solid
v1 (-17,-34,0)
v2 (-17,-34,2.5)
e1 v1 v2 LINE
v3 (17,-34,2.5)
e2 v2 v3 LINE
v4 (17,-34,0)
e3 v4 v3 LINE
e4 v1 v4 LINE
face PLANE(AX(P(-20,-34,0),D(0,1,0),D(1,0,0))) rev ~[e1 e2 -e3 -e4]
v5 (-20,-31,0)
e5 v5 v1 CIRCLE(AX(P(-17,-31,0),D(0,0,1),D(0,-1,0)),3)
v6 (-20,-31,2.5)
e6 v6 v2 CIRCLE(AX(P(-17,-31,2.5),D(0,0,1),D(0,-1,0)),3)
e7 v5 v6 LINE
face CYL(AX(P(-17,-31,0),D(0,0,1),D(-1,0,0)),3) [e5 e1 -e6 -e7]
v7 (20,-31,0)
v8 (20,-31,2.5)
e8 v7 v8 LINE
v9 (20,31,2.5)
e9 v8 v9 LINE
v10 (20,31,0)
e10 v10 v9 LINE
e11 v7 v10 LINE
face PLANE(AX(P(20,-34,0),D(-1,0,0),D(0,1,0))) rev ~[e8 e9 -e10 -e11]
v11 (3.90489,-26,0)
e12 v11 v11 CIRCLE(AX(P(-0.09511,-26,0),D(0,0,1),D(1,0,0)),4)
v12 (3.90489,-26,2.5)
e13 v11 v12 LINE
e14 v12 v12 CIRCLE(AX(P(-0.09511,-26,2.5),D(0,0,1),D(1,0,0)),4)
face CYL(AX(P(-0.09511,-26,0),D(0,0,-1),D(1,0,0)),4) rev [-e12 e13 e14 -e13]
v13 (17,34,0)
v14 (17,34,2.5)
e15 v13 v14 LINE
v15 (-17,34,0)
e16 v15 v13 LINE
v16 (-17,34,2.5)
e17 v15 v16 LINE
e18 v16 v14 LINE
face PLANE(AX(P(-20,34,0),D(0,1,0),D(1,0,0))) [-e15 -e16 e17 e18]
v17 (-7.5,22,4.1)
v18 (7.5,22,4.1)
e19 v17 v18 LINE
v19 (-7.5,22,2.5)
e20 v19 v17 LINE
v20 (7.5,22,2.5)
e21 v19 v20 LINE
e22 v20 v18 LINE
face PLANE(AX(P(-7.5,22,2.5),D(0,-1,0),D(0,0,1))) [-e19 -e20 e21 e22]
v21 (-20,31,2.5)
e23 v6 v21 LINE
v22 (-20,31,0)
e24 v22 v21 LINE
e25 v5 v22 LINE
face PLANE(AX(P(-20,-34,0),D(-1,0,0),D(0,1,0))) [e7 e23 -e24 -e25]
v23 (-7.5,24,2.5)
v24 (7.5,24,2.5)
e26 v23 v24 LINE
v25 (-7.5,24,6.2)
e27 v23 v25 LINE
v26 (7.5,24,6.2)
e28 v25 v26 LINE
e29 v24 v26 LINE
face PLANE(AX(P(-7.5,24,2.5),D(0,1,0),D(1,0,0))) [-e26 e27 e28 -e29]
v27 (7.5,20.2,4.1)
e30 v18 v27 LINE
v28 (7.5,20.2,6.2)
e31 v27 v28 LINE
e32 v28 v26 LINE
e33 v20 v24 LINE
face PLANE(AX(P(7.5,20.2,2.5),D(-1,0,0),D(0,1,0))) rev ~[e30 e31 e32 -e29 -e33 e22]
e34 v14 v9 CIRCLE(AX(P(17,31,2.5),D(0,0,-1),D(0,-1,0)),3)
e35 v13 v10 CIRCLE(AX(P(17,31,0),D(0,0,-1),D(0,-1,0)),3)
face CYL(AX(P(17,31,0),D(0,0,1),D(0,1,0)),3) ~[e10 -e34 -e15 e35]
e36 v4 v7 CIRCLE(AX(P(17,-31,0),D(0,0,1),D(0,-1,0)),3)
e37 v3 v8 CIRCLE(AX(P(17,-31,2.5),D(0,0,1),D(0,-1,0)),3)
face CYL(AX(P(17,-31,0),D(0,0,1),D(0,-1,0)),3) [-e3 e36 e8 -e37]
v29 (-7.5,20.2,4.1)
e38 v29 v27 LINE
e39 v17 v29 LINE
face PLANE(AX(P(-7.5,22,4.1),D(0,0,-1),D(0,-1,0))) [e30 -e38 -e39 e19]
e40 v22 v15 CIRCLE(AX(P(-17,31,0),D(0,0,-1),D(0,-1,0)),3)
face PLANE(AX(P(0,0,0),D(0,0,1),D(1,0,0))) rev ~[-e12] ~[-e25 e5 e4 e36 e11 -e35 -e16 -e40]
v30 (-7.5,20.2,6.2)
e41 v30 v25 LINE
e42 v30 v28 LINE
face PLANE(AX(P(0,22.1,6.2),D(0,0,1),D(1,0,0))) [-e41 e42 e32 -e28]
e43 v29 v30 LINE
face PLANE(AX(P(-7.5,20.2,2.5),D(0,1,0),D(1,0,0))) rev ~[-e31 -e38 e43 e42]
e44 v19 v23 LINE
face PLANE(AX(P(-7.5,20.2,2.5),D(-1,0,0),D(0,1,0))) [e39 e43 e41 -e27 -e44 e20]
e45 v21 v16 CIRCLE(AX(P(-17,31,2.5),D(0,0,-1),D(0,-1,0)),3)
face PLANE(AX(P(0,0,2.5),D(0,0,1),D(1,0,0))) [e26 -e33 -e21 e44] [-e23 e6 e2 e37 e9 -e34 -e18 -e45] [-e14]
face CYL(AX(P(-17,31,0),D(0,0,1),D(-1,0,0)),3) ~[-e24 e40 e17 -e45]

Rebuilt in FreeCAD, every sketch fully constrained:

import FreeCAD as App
import Part
import Sketcher


def edges_at(feature, points):
    """Names of the edges that pass closest to the given points."""
    edges = feature.Shape.Edges
    near = lambda p: min(range(len(edges)), key=lambda i: edges[i].distToShape(Part.Vertex(*p))[0])
    return sorted({f"Edge{near(p) + 1}" for p in points})

doc = App.newDocument("Part")
params = doc.addObject("Spreadsheet::Sheet", "Params")
for row, (alias, value) in enumerate([
    ("sketch1_diameter", "8 mm"),
    ("sketch1_width", "40 mm"),
    ("sketch1_height", "68 mm"),
    ("pad1_length", "2.5 mm"),
    ("fillet_radius", "3 mm"),
    ("sketch2_width", "15 mm"),
    ("sketch2_height", "3.8 mm"),
    ("pad2_length", "3.7 mm"),
    ("sketch3_width", "1.8 mm"),
    ("sketch3_height", "1.6 mm"),
    ("pocket1_length", "25 mm"),
], start=1):
    params.set(f"A{row}", alias)
    params.set(f"B{row}", "=" + value)
    params.setAlias(f"B{row}", alias)

body = doc.addObject("PartDesign::Body", "Body")

sketch1 = doc.addObject("Sketcher::SketchObject", "Sketch")
body.addObject(sketch1)
sketch1.AttachmentSupport = (doc.XY_Plane, [""])
sketch1.MapMode = "FlatFace"
sketch1.addGeometry(Part.LineSegment(App.Vector(-20, 34, 0), App.Vector(-20, -34, 0)), False)
sketch1.addGeometry(Part.LineSegment(App.Vector(-20, -34, 0), App.Vector(20, -34, 0)), False)
sketch1.addGeometry(Part.LineSegment(App.Vector(20, -34, 0), App.Vector(20, 34, 0)), False)
sketch1.addGeometry(Part.LineSegment(App.Vector(20, 34, 0), App.Vector(-20, 34, 0)), False)
sketch1.addGeometry(Part.Circle(App.Vector(-0.1, -26, 0), App.Vector(0, 0, 1), 4), False)
sketch1.addConstraint(Sketcher.Constraint("Coincident", 0, 2, 1, 1))
sketch1.addConstraint(Sketcher.Constraint("Coincident", 1, 2, 2, 1))
sketch1.addConstraint(Sketcher.Constraint("Coincident", 2, 2, 3, 1))
sketch1.addConstraint(Sketcher.Constraint("Coincident", 3, 2, 0, 1))
sketch1.addConstraint(Sketcher.Constraint("Vertical", 0))
sketch1.addConstraint(Sketcher.Constraint("Horizontal", 1))
sketch1.addConstraint(Sketcher.Constraint("Vertical", 2))
sketch1.addConstraint(Sketcher.Constraint("Horizontal", 3))
sketch1.addConstraint(Sketcher.Constraint("Symmetric", 0, 2, 2, 2, -1, 1))
sketch1.addConstraint(Sketcher.Constraint("Diameter", 4, 8.0))
sketch1.addConstraint(Sketcher.Constraint("DistanceX", 1, 1, 1, 2, 40.0))
sketch1.addConstraint(Sketcher.Constraint("DistanceY", 0, 2, 0, 1, 68.0))
sketch1.addConstraint(Sketcher.Constraint("DistanceY", 4, 3, -1, 1, 26.0))
sketch1.addConstraint(Sketcher.Constraint("DistanceX", 4, 3, -1, 1, 0.09511))
sketch1.setExpression("Constraints[9]", "Params.sketch1_diameter")
sketch1.setExpression("Constraints[10]", "Params.sketch1_width")
sketch1.setExpression("Constraints[11]", "Params.sketch1_height")
pad1 = doc.addObject("PartDesign::Pad", "Pad")
body.addObject(pad1)
pad1.Profile = sketch1
pad1.setExpression("Length", "Params.pad1_length")
doc.recompute()

fillet = doc.addObject("PartDesign::Fillet", "Fillet")
body.addObject(fillet)
fillet.Base = (pad1, edges_at(pad1, [
    (-20, 34, 1.25),
    (20, 34, 1.25),
    (-20, -34, 1.25),
    (20, -34, 1.25),
]))
fillet.setExpression("Radius", "Params.fillet_radius")

sketch2 = doc.addObject("Sketcher::SketchObject", "Sketch001")
body.addObject(sketch2)
sketch2.AttachmentSupport = (doc.XY_Plane, [""])
sketch2.MapMode = "FlatFace"
sketch2.AttachmentOffset = App.Placement(App.Vector(0, 0, 2.5), App.Rotation())
sketch2.addGeometry(Part.LineSegment(App.Vector(-7.5, 24, 0), App.Vector(-7.5, 20.2, 0)), False)
sketch2.addGeometry(Part.LineSegment(App.Vector(-7.5, 20.2, 0), App.Vector(7.5, 20.2, 0)), False)
sketch2.addGeometry(Part.LineSegment(App.Vector(7.5, 20.2, 0), App.Vector(7.5, 24, 0)), False)
sketch2.addGeometry(Part.LineSegment(App.Vector(7.5, 24, 0), App.Vector(-7.5, 24, 0)), False)
sketch2.addConstraint(Sketcher.Constraint("Coincident", 0, 2, 1, 1))
sketch2.addConstraint(Sketcher.Constraint("Coincident", 1, 2, 2, 1))
sketch2.addConstraint(Sketcher.Constraint("Coincident", 2, 2, 3, 1))
sketch2.addConstraint(Sketcher.Constraint("Coincident", 3, 2, 0, 1))
sketch2.addConstraint(Sketcher.Constraint("Vertical", 0))
sketch2.addConstraint(Sketcher.Constraint("Horizontal", 1))
sketch2.addConstraint(Sketcher.Constraint("Vertical", 2))
sketch2.addConstraint(Sketcher.Constraint("Horizontal", 3))
sketch2.addConstraint(Sketcher.Constraint("DistanceX", 1, 1, 1, 2, 15.0))
sketch2.addConstraint(Sketcher.Constraint("DistanceY", 0, 2, 0, 1, 3.8))
sketch2.addConstraint(Sketcher.Constraint("DistanceY", -1, 1, 2, 2, 24.0))
sketch2.addConstraint(Sketcher.Constraint("DistanceX", 0, 2, -1, 1, 7.5))
sketch2.setExpression("Constraints[8]", "Params.sketch2_width")
sketch2.setExpression("Constraints[9]", "Params.sketch2_height")
pad2 = doc.addObject("PartDesign::Pad", "Pad001")
body.addObject(pad2)
pad2.Profile = sketch2
pad2.setExpression("Length", "Params.pad2_length")

sketch3 = doc.addObject("Sketcher::SketchObject", "Sketch002")
body.addObject(sketch3)
sketch3.AttachmentSupport = (doc.YZ_Plane, [""])
sketch3.MapMode = "FlatFace"
sketch3.AttachmentOffset = App.Placement(App.Vector(0, 0, -7.5), App.Rotation())
sketch3.addGeometry(Part.LineSegment(App.Vector(22, 4.1, 0), App.Vector(22, 2.5, 0)), False)
sketch3.addGeometry(Part.LineSegment(App.Vector(22, 2.5, 0), App.Vector(20.2, 2.5, 0)), False)
sketch3.addGeometry(Part.LineSegment(App.Vector(20.2, 2.5, 0), App.Vector(20.2, 4.1, 0)), False)
sketch3.addGeometry(Part.LineSegment(App.Vector(20.2, 4.1, 0), App.Vector(22, 4.1, 0)), False)
sketch3.addConstraint(Sketcher.Constraint("Coincident", 0, 2, 1, 1))
sketch3.addConstraint(Sketcher.Constraint("Coincident", 1, 2, 2, 1))
sketch3.addConstraint(Sketcher.Constraint("Coincident", 2, 2, 3, 1))
sketch3.addConstraint(Sketcher.Constraint("Coincident", 3, 2, 0, 1))
sketch3.addConstraint(Sketcher.Constraint("Vertical", 0))
sketch3.addConstraint(Sketcher.Constraint("Horizontal", 1))
sketch3.addConstraint(Sketcher.Constraint("Vertical", 2))
sketch3.addConstraint(Sketcher.Constraint("Horizontal", 3))
sketch3.addConstraint(Sketcher.Constraint("DistanceX", 1, 2, 1, 1, 1.8))
sketch3.addConstraint(Sketcher.Constraint("DistanceY", 0, 2, 0, 1, 1.6))
sketch3.addConstraint(Sketcher.Constraint("DistanceX", -1, 1, 0, 2, 22.0))
sketch3.addConstraint(Sketcher.Constraint("DistanceY", -1, 1, 0, 2, 2.5))
sketch3.setExpression("Constraints[8]", "Params.sketch3_width")
sketch3.setExpression("Constraints[9]", "Params.sketch3_height")
pocket1 = doc.addObject("PartDesign::Pocket", "Pocket")
body.addObject(pocket1)
pocket1.Profile = sketch3
pocket1.setExpression("Length", "Params.pocket1_length")
pocket1.Reversed = True

doc.recompute()
